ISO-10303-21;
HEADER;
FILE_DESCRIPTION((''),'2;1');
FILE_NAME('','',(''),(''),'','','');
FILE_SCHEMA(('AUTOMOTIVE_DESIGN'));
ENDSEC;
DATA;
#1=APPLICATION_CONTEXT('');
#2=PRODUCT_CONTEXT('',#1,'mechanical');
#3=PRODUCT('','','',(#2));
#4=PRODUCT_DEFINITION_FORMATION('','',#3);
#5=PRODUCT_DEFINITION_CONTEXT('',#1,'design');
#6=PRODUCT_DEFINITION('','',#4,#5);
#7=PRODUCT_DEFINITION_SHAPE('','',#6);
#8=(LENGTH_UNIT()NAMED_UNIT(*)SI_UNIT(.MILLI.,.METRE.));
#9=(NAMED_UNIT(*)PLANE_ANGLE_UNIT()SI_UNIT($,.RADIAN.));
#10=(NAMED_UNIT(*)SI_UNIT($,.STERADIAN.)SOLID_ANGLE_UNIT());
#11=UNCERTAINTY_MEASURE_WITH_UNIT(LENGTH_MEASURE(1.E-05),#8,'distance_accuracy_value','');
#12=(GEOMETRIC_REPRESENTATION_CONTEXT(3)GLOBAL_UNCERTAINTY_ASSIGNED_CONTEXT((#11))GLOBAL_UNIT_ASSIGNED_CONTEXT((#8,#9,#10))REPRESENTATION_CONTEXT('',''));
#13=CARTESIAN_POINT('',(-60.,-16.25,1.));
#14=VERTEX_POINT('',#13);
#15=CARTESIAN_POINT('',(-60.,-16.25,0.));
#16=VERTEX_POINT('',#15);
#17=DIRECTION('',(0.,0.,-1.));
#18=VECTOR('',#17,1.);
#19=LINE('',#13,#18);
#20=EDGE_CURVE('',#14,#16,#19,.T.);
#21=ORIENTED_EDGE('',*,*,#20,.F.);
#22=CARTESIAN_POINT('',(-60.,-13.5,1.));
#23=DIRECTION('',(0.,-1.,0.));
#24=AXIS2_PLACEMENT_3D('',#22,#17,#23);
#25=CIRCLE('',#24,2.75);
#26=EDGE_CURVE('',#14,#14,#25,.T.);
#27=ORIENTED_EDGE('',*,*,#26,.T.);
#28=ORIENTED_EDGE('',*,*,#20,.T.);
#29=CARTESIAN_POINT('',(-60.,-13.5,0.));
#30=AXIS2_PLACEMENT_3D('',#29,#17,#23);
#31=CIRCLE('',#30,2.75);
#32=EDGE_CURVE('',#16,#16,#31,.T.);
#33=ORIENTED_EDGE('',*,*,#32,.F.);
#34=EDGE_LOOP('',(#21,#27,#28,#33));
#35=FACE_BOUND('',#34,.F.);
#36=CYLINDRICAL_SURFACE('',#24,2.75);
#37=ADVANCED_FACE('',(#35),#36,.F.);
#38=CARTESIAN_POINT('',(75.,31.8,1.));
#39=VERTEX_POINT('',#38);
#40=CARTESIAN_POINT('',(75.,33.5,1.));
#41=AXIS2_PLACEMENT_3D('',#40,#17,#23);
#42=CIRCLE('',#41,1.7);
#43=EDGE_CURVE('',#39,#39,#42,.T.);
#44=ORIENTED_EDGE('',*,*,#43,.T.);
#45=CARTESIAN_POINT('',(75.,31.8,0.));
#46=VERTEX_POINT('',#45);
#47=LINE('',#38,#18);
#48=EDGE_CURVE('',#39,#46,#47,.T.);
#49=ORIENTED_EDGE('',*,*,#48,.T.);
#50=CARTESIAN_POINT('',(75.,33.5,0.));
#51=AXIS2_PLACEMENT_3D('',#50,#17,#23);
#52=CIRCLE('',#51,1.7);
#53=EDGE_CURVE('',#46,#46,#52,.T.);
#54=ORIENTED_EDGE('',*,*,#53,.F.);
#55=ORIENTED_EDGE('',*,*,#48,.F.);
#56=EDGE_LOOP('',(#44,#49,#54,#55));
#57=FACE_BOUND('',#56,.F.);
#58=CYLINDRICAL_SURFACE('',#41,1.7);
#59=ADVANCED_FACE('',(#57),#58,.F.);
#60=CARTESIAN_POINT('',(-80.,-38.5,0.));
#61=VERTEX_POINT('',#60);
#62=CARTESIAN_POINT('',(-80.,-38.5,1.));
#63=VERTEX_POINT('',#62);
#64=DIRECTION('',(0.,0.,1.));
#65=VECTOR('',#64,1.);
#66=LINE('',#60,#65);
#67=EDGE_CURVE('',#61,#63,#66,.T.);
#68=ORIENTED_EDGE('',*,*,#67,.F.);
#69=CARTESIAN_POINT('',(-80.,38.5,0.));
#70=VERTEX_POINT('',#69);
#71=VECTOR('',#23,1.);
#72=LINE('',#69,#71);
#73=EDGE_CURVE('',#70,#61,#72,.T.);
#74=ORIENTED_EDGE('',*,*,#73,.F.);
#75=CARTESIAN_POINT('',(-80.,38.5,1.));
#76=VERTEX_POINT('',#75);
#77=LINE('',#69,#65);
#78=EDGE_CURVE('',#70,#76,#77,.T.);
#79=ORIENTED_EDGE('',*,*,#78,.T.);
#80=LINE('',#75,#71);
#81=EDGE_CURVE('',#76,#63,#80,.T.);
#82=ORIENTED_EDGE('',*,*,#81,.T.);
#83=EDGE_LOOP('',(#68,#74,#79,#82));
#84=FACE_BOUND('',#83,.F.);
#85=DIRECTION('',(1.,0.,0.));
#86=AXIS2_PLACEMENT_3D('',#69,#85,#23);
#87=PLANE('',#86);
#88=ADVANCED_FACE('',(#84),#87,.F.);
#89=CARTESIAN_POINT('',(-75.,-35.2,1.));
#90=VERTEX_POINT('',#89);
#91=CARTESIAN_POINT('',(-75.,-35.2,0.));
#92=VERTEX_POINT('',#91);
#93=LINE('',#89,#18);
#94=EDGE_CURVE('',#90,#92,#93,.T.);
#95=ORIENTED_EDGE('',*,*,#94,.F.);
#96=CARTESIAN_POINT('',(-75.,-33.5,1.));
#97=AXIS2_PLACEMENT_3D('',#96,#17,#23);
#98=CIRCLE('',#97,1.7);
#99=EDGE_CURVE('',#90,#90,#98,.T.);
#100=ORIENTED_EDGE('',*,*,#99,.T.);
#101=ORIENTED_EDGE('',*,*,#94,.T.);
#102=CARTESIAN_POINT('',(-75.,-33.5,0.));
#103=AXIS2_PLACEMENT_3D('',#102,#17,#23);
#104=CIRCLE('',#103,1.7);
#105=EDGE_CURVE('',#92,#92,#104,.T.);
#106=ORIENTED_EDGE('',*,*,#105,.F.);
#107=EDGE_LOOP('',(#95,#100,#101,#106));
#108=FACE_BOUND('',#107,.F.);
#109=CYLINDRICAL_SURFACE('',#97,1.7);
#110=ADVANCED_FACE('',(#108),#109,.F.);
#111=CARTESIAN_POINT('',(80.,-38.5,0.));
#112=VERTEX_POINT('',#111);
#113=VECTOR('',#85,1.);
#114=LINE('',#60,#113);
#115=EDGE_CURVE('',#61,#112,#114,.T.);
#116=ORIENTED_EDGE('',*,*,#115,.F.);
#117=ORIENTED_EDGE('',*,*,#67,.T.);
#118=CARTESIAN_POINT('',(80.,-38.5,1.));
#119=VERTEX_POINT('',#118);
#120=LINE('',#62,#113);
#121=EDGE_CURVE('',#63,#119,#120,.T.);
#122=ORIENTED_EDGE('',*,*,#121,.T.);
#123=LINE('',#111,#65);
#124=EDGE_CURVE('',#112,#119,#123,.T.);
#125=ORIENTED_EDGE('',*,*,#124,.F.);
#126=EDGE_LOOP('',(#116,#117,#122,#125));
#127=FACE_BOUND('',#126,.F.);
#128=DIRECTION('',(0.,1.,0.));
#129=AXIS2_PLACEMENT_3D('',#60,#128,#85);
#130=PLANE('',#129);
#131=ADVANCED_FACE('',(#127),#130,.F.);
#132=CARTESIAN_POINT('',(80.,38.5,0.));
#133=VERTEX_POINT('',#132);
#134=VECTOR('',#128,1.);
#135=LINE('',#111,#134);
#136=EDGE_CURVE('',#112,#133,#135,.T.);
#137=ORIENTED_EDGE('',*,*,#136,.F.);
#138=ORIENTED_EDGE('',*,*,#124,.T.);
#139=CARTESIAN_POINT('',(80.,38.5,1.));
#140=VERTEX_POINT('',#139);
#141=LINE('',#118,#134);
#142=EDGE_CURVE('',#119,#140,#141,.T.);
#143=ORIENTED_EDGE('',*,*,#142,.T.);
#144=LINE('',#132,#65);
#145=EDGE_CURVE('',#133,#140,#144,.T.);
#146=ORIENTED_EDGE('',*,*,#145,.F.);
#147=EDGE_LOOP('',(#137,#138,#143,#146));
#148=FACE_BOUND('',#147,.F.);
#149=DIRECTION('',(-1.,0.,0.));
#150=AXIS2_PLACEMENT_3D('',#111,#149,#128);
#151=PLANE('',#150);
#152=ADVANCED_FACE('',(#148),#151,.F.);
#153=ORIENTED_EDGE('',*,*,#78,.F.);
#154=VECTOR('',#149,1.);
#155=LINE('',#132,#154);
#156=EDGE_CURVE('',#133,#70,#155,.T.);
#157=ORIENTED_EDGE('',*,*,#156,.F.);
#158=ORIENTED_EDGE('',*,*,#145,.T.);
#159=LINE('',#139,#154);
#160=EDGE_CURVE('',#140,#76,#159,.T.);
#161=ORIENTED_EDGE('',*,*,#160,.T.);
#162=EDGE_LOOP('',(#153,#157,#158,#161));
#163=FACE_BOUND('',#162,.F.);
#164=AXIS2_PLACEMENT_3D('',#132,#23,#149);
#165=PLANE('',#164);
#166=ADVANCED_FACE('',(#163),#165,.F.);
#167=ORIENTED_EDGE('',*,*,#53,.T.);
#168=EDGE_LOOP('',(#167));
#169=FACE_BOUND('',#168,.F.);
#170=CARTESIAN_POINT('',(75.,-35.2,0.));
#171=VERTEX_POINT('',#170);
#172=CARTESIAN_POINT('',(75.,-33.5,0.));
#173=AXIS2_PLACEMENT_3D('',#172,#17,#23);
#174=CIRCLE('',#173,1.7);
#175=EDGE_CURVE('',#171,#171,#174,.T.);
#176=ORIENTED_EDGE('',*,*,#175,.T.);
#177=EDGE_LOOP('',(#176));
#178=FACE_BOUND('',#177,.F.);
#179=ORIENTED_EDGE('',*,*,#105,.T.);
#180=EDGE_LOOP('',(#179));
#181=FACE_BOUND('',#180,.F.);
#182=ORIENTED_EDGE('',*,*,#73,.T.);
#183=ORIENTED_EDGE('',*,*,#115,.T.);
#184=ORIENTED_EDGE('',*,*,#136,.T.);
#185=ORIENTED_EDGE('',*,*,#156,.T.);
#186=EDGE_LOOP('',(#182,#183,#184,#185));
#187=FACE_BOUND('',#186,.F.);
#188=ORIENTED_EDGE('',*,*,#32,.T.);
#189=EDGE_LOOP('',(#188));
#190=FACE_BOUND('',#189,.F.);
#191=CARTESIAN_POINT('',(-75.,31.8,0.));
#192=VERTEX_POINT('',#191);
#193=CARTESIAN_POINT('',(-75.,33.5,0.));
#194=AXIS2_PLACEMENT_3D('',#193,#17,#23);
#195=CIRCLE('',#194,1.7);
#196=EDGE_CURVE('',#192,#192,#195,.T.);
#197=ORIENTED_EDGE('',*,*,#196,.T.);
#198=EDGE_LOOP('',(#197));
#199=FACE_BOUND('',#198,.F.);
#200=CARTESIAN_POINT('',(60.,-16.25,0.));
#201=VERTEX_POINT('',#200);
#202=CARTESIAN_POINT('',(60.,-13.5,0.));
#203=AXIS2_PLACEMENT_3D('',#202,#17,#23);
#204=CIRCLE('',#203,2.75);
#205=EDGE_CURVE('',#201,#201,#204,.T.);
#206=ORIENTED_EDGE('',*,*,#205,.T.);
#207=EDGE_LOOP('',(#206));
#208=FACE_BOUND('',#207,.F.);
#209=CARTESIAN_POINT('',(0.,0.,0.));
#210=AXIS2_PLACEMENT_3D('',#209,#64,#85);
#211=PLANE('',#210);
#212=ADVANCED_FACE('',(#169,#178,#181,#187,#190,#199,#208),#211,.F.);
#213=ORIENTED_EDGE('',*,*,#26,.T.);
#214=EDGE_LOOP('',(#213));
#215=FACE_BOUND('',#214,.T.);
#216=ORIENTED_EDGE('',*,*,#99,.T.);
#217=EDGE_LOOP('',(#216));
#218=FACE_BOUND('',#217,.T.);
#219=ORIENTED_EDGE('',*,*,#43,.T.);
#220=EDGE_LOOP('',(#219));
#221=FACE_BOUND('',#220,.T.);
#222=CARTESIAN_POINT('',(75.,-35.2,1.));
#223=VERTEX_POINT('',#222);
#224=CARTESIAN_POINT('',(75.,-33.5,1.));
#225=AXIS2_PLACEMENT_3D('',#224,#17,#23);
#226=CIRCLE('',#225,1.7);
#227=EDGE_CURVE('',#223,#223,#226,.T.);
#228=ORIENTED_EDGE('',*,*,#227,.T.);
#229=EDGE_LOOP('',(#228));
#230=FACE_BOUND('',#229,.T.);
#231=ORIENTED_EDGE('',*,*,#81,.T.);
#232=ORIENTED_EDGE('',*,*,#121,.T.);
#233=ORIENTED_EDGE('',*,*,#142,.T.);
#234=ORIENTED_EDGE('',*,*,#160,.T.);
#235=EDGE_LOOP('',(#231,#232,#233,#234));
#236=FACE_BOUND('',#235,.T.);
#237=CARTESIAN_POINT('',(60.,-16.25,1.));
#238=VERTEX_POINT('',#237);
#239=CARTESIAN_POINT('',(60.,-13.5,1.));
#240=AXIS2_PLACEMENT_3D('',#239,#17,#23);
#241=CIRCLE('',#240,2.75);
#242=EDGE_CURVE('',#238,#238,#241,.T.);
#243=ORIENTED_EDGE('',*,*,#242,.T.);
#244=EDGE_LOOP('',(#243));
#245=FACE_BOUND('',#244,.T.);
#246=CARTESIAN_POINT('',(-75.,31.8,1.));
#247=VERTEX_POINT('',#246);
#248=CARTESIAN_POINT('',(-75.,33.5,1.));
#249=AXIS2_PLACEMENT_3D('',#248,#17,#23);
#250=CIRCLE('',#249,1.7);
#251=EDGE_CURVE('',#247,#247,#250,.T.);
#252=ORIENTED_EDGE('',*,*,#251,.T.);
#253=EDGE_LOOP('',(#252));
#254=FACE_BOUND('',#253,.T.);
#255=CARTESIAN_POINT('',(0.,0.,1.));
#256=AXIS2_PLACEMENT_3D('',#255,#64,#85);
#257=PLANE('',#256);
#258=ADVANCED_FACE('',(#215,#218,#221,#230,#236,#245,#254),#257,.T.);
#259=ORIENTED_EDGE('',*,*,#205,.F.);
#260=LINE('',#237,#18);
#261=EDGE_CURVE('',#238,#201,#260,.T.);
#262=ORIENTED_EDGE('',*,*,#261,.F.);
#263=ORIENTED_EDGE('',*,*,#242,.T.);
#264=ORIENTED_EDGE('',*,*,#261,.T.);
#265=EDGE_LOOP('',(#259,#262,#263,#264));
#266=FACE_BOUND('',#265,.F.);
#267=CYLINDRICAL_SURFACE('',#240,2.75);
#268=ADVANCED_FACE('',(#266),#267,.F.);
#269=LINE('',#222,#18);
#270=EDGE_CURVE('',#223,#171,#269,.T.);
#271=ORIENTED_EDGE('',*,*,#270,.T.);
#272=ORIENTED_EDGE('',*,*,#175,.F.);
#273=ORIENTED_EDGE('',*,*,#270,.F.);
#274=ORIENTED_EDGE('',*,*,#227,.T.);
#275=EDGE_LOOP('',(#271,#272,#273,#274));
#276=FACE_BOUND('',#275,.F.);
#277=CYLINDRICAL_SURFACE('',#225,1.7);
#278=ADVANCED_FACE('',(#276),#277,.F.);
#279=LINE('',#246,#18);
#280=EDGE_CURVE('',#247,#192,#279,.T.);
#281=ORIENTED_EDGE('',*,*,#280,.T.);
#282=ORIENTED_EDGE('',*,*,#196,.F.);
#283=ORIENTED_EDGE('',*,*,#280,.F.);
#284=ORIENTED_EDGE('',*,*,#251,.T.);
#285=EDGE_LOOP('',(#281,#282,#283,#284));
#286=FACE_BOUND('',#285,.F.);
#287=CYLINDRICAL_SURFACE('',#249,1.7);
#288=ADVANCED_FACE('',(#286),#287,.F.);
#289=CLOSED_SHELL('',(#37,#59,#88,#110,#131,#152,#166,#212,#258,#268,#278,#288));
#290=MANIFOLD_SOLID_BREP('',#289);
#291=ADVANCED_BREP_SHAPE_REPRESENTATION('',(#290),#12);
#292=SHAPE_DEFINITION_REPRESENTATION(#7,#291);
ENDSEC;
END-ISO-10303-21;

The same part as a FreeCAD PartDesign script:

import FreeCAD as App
import Part
import Sketcher

V = App.Vector

doc = App.newDocument("Part")
body = doc.addObject("PartDesign::Body", "Body")

sketch1 = body.newObject("Sketcher::SketchObject", "Sketch")
sketch1.AttachmentSupport = (doc.getObject("XY_Plane"), [""])
sketch1.MapMode = "FlatFace"
sketch1.addGeometry(Part.LineSegment(V(-80, 38, 0), V(-80, -38, 0)), False)
sketch1.addGeometry(Part.LineSegment(V(-80, -38, 0), V(80, -38, 0)), False)
sketch1.addGeometry(Part.LineSegment(V(80, -38, 0), V(80, 38, 0)), False)
sketch1.addGeometry(Part.LineSegment(V(80, 38, 0), V(-80, 38, 0)), False)
sketch1.addConstraint(Sketcher.Constraint("Coincident", 0, 2, 1, 1))
sketch1.addConstraint(Sketcher.Constraint("Coincident", 1, 2, 2, 1))
sketch1.addConstraint(Sketcher.Constraint("Coincident", 2, 2, 3, 1))
sketch1.addConstraint(Sketcher.Constraint("Coincident", 3, 2, 0, 1))
sketch1.addConstraint(Sketcher.Constraint("Vertical", 0))
sketch1.addConstraint(Sketcher.Constraint("Horizontal", 1))
sketch1.addConstraint(Sketcher.Constraint("Vertical", 2))
sketch1.addConstraint(Sketcher.Constraint("Horizontal", 3))
sketch1.addConstraint(Sketcher.Constraint("Symmetric", 0, 2, 2, 2, -1, 1))
sketch1.addConstraint(Sketcher.Constraint("DistanceX", 1, 1, 1, 2, 160.0))
sketch1.addConstraint(Sketcher.Constraint("DistanceY", 0, 2, 0, 1, 77.0))
pad1 = body.newObject("PartDesign::Pad", "Pad")
pad1.Profile = sketch1
pad1.Length = 1

sketch2 = body.newObject("Sketcher::SketchObject", "Sketch001")
sketch2.AttachmentSupport = (doc.getObject("XY_Plane"), [""])
sketch2.MapMode = "FlatFace"
sketch2.AttachmentOffset = App.Placement(V(0, 0, 1), App.Rotation())
sketch2.addGeometry(Part.Circle(V(-75, 33.5, 0), V(0, 0, 1), 1.7), False)
sketch2.addGeometry(Part.Circle(V(-75, -33.5, 0), V(0, 0, 1), 1.7), False)
sketch2.addGeometry(Part.Circle(V(75, -33.5, 0), V(0, 0, 1), 1.7), False)
sketch2.addGeometry(Part.Circle(V(75, 33.5, 0), V(0, 0, 1), 1.7), False)
sketch2.addConstraint(Sketcher.Constraint("Equal", 0, 1))
sketch2.addConstraint(Sketcher.Constraint("Equal", 1, 2))
sketch2.addConstraint(Sketcher.Constraint("Equal", 2, 3))
sketch2.addConstraint(Sketcher.Constraint("Symmetric", 0, 3, 2, 3, -1, 1))
sketch2.addConstraint(Sketcher.Constraint("Symmetric", 1, 3, 3, 3, -1, 1))
sketch2.addConstraint(Sketcher.Constraint("Symmetric", 1, 3, 2, 3, -2))
sketch2.addConstraint(Sketcher.Constraint("Diameter", 0, 3.4))
sketch2.addConstraint(Sketcher.Constraint("DistanceX", 0, 3, -1, 1, 75.0))
sketch2.addConstraint(Sketcher.Constraint("DistanceY", 1, 3, 0, 3, 67.0))
doc.recompute()
hole = body.newObject("PartDesign::Hole", "Hole")
hole.Profile = sketch2
hole.ThreadType = "None"
hole.Diameter = 3.4
hole.DepthType = "Dimension"
hole.Depth = 1
hole.DrillPoint = "Flat"

sketch3 = body.newObject("Sketcher::SketchObject", "Sketch002")
sketch3.AttachmentSupport = (doc.getObject("XY_Plane"), [""])
sketch3.MapMode = "FlatFace"
sketch3.AttachmentOffset = App.Placement(V(0, 0, 1), App.Rotation())
sketch3.addGeometry(Part.Circle(V(-60, -13.5, 0), V(0, 0, 1), 2.8), False)
sketch3.addGeometry(Part.Circle(V(60, -13.5, 0), V(0, 0, 1), 2.8), False)
sketch3.addConstraint(Sketcher.Constraint("Equal", 0, 1))
sketch3.addConstraint(Sketcher.Constraint("Symmetric", 0, 3, 1, 3, -2))
sketch3.addConstraint(Sketcher.Constraint("Diameter", 0, 5.5))
sketch3.addConstraint(Sketcher.Constraint("DistanceX", 0, 3, -1, 1, 60.0))
sketch3.addConstraint(Sketcher.Constraint("DistanceY", 0, 3, -1, 1, 13.5))
doc.recompute()
hole2 = body.newObject("PartDesign::Hole", "Hole001")
hole2.Profile = sketch3
hole2.ThreadType = "None"
hole2.Diameter = 5.5
hole2.DepthType = "ThroughAll"

doc.recompute()
